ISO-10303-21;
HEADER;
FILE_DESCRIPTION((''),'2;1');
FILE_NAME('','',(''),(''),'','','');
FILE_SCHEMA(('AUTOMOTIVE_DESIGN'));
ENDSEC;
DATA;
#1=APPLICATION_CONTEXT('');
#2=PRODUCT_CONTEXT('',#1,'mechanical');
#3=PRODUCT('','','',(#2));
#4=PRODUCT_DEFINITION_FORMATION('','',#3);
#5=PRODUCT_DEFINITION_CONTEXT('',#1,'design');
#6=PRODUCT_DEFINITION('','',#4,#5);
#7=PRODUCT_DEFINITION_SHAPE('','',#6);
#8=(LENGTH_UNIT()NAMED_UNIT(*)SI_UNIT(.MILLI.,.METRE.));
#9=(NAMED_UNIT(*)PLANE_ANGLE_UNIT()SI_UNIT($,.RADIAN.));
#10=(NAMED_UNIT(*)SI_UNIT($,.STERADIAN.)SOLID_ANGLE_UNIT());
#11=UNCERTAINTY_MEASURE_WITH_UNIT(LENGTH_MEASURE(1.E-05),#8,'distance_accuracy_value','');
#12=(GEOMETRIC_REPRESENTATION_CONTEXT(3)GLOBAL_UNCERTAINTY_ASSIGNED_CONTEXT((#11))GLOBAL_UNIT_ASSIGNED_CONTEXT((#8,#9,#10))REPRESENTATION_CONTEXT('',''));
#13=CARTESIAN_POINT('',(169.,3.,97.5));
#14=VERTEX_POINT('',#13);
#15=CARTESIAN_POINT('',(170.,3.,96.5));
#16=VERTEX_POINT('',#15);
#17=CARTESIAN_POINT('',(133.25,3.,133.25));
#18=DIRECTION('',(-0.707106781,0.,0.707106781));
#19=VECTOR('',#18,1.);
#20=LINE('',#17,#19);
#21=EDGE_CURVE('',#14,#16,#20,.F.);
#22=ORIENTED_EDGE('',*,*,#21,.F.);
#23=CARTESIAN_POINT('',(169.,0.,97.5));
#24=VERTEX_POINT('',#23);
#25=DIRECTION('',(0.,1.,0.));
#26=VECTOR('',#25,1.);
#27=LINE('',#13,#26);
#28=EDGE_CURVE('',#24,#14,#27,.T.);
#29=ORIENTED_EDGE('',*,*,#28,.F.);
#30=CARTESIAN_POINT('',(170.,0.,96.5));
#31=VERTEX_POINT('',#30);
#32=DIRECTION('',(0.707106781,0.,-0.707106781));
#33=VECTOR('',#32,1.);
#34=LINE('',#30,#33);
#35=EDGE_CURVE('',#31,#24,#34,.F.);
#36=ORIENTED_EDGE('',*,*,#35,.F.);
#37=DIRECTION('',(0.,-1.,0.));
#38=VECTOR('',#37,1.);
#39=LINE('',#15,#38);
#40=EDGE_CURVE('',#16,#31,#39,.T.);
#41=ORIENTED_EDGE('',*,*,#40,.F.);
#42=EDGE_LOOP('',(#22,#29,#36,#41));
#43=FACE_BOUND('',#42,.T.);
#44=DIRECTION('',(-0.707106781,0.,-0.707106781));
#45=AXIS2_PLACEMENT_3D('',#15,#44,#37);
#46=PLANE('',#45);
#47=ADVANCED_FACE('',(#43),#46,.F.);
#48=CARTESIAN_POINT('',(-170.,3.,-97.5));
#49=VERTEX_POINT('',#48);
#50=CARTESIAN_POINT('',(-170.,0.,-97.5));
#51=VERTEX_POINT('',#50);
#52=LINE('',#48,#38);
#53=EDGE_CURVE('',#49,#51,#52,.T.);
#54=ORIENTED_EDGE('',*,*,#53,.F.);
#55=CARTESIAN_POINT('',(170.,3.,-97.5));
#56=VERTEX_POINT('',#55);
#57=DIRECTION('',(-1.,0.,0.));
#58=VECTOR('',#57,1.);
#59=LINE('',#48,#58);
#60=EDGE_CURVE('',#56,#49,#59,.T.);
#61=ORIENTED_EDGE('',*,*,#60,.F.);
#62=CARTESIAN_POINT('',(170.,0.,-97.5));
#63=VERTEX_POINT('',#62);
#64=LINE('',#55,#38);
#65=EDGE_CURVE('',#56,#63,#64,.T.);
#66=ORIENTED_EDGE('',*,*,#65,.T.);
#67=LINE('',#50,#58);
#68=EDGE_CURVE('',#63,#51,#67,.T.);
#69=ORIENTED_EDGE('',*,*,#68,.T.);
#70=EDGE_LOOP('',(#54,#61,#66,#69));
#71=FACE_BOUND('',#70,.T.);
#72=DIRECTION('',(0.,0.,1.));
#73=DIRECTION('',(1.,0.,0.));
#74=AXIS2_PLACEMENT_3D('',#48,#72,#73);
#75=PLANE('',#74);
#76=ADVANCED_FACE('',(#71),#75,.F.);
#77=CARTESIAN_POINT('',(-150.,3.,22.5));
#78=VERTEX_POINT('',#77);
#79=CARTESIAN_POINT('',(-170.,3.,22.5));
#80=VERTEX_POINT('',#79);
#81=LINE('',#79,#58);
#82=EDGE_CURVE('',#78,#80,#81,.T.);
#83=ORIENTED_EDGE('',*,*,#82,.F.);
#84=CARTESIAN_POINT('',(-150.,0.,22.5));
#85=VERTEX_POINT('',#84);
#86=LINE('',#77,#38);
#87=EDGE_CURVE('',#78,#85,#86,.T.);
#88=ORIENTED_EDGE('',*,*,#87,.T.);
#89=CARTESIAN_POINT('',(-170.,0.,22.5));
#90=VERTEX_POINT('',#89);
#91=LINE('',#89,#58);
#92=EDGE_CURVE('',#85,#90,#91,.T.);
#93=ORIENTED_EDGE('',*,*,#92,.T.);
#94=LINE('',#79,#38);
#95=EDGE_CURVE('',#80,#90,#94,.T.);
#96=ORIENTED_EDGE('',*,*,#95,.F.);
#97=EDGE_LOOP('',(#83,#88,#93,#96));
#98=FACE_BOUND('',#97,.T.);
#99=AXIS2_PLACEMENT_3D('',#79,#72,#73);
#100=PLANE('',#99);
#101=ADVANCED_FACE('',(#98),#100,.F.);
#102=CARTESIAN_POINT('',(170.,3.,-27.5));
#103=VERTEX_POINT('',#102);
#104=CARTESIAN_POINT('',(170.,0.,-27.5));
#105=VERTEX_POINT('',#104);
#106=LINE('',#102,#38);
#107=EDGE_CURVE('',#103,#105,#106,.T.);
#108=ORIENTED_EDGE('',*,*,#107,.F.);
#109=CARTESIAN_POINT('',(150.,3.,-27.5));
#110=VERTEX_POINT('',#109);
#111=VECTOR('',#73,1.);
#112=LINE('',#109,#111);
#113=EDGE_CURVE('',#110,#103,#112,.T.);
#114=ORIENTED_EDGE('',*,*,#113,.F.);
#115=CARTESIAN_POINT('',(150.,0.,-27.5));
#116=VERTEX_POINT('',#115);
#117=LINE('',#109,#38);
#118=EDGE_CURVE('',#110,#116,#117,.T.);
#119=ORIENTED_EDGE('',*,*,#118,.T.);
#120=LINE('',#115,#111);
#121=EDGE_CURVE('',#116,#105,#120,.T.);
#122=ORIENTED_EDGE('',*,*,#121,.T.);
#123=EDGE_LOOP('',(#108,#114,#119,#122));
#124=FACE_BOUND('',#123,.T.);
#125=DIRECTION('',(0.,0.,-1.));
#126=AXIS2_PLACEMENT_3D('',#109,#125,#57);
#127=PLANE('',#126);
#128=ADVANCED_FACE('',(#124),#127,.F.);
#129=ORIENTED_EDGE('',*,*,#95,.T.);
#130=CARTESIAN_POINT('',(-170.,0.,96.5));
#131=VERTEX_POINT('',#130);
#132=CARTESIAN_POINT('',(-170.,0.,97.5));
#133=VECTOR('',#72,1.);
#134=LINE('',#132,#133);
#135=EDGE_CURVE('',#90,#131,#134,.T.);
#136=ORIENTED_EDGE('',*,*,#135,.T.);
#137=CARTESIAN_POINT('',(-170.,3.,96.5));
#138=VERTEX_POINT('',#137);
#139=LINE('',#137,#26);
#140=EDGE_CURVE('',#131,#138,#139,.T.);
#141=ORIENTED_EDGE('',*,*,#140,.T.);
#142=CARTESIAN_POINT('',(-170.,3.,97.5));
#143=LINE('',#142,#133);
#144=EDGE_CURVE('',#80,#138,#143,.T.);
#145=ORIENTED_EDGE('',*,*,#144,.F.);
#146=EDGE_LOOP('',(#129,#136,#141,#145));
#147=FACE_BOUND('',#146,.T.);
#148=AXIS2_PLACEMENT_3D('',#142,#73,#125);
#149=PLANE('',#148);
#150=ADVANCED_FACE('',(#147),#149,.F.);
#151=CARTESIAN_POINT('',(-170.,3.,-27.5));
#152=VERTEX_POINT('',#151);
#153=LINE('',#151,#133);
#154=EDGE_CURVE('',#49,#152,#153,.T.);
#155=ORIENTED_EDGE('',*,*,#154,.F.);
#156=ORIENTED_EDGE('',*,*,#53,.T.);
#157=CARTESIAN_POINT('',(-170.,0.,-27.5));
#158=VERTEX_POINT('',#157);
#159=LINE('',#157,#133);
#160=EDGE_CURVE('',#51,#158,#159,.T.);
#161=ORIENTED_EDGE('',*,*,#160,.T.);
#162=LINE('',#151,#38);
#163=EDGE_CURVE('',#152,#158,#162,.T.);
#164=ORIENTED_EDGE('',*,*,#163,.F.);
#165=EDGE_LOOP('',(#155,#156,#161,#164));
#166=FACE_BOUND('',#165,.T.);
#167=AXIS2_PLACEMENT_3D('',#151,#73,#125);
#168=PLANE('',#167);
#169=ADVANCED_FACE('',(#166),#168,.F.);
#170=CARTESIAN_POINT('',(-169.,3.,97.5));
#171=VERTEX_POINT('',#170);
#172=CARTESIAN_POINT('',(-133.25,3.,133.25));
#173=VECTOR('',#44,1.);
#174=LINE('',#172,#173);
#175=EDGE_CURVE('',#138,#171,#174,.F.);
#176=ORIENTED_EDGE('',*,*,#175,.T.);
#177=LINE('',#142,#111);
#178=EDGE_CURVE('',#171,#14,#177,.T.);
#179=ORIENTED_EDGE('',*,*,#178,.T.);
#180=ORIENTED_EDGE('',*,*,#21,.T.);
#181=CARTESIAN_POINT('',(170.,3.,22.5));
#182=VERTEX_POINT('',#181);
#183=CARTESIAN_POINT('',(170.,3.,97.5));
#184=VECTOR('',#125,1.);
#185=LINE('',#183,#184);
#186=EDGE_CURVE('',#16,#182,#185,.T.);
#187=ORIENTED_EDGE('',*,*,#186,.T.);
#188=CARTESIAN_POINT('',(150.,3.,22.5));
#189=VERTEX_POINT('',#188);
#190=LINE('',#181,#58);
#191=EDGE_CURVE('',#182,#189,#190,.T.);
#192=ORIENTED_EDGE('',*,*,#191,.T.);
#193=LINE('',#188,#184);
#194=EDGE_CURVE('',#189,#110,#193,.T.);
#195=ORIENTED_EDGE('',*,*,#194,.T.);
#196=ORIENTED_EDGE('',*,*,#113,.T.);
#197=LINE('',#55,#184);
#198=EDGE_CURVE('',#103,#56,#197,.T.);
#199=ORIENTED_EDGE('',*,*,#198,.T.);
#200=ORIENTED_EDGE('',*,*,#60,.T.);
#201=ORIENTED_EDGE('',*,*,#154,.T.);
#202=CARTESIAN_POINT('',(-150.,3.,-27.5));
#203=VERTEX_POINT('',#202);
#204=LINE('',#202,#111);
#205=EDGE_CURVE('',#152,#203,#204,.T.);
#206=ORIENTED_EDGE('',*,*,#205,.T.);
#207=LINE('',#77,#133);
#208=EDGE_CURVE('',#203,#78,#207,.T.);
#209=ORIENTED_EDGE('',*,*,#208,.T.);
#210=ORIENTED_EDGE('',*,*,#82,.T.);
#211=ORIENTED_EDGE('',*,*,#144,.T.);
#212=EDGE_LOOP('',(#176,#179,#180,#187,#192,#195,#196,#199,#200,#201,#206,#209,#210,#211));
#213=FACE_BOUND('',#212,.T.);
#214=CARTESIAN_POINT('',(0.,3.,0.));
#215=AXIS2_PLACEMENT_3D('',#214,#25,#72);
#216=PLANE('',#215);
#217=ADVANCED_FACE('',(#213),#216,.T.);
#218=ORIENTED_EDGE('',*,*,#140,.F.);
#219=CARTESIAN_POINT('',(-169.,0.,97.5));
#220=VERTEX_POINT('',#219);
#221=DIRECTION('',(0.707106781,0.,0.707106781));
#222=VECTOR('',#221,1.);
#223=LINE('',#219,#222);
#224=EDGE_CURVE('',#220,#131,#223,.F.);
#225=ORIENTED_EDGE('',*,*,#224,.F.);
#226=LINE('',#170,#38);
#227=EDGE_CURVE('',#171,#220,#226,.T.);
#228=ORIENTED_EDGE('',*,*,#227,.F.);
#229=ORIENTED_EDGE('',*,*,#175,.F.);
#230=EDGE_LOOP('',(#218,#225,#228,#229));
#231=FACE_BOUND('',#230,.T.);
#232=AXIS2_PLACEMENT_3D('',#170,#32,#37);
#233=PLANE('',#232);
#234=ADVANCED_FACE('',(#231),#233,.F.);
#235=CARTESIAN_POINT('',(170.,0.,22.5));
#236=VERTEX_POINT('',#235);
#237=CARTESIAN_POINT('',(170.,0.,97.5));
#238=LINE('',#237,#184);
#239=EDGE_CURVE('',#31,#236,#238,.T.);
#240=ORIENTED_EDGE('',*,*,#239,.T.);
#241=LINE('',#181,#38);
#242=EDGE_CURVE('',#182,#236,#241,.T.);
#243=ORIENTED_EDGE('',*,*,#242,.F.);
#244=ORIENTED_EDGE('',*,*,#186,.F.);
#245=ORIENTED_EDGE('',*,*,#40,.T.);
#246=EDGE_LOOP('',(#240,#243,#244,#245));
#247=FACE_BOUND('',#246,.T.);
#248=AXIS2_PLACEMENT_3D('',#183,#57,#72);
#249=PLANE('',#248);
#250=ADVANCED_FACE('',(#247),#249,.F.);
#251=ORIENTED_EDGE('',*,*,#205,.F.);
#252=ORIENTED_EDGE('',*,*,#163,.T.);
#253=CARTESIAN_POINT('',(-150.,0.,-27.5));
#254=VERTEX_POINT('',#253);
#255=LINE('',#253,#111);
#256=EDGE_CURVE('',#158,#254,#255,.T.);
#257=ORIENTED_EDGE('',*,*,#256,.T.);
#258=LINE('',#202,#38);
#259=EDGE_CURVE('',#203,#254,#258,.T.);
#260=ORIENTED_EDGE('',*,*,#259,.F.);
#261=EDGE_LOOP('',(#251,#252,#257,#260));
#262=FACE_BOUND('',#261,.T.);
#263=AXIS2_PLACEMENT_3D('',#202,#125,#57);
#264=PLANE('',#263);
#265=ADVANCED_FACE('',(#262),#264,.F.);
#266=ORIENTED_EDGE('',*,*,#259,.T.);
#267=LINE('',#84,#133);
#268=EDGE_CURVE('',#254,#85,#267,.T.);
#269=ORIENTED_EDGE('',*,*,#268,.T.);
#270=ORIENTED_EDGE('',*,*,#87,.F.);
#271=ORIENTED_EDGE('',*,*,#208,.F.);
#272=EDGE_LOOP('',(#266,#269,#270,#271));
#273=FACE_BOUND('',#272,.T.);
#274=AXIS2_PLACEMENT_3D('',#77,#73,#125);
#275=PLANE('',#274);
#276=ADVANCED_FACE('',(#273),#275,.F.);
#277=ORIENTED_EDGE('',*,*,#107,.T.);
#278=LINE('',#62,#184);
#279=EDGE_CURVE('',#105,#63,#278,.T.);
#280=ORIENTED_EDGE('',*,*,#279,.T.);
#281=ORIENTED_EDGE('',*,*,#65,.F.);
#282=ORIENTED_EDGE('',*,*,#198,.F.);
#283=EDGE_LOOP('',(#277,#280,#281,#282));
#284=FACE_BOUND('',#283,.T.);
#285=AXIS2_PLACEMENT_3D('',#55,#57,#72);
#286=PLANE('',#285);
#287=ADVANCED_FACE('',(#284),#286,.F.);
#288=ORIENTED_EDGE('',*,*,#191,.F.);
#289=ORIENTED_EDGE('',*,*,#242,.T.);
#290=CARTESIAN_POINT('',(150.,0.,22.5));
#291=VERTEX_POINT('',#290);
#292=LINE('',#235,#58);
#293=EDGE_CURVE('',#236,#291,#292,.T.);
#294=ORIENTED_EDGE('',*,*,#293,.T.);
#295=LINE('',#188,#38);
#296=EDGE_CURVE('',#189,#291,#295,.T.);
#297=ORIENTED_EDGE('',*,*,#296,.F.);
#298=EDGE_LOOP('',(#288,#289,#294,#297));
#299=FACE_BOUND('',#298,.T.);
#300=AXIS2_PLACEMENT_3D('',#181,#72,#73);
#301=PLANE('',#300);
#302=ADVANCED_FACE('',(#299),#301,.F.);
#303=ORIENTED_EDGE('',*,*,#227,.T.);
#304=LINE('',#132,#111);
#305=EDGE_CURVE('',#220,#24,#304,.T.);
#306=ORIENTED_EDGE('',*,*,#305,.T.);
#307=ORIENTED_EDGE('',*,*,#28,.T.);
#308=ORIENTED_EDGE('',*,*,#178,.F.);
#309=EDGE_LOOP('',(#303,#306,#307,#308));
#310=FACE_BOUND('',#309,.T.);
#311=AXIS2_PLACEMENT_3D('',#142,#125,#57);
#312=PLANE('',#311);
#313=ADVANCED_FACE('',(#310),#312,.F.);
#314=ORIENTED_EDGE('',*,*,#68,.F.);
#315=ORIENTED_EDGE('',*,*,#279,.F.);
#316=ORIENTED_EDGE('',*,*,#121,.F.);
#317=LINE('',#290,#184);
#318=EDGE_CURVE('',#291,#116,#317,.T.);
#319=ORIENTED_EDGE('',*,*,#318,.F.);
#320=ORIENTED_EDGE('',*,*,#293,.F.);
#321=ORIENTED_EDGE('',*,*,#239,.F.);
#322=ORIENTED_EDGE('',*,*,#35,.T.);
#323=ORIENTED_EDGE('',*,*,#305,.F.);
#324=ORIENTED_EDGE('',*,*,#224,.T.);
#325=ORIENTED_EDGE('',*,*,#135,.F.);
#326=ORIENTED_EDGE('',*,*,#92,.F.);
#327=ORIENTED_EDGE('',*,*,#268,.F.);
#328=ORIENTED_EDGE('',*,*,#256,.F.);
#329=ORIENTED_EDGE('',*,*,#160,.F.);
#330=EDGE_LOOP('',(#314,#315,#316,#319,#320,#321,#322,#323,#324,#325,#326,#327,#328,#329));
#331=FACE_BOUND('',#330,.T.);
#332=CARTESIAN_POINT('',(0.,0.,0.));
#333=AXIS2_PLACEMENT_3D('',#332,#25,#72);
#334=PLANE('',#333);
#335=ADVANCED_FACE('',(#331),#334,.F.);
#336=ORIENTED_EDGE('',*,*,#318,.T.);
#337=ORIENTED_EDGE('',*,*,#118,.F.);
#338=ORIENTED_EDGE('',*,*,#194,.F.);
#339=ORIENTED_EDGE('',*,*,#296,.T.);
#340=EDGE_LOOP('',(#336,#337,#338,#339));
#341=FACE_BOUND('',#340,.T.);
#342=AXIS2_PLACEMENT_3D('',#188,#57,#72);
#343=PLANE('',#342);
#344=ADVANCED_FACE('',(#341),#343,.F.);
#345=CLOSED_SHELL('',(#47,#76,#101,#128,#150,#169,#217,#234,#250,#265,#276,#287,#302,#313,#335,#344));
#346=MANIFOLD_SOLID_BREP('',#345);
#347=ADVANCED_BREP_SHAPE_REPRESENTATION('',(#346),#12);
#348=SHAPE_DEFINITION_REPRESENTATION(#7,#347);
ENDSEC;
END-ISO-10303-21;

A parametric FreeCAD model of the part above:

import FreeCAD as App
import Part
import Sketcher
Q = App.Units.Quantity


def edges_at(feature, points):
    """Names of the edges that pass closest to the given points."""
    edges = feature.Shape.Edges
    near = lambda p: min(range(len(edges)), key=lambda i: edges[i].distToShape(Part.Vertex(*p))[0])
    return sorted({f"Edge{near(p) + 1}" for p in points})

doc = App.newDocument("Part")
body = doc.addObject("PartDesign::Body", "Body")

# Sketch on XZ plane
sketch1 = body.newObject("Sketcher::SketchObject", "Sketch")
sketch1.AttachmentSupport = (doc.getObject("XZ_Plane"), [""])
sketch1.MapMode = "FlatFace"
sketch1.addGeometry([
    Part.LineSegment(App.Vector(-170, 22, 0), App.Vector(-170, 98, 0)),  # 0
    Part.LineSegment(App.Vector(-170, 98, 0), App.Vector(170, 98, 0)),  # 1
    Part.LineSegment(App.Vector(170, 98, 0), App.Vector(170, 22, 0)),  # 2
    Part.LineSegment(App.Vector(170, 22, 0), App.Vector(150, 22, 0)),  # 3
    Part.LineSegment(App.Vector(150, 22, 0), App.Vector(150, -28, 0)),  # 4
    Part.LineSegment(App.Vector(150, -28, 0), App.Vector(170, -28, 0)),  # 5
    Part.LineSegment(App.Vector(170, -28, 0), App.Vector(170, -98, 0)),  # 6
    Part.LineSegment(App.Vector(170, -98, 0), App.Vector(-170, -98, 0)),  # 7
    Part.LineSegment(App.Vector(-170, -98, 0), App.Vector(-170, -28, 0)),  # 8
    Part.LineSegment(App.Vector(-170, -28, 0), App.Vector(-150, -28, 0)),  # 9
    Part.LineSegment(App.Vector(-150, -28, 0), App.Vector(-150, 22, 0)),  # 10
    Part.LineSegment(App.Vector(-150, 22, 0), App.Vector(-170, 22, 0)),  # 11
], False)
sketch1.addConstraint([
    Sketcher.Constraint("Coincident", 0, 2, 1, 1),
    Sketcher.Constraint("Coincident", 1, 2, 2, 1),
    Sketcher.Constraint("Coincident", 2, 2, 3, 1),
    Sketcher.Constraint("Coincident", 3, 2, 4, 1),
    Sketcher.Constraint("Coincident", 4, 2, 5, 1),
    Sketcher.Constraint("Coincident", 5, 2, 6, 1),
    Sketcher.Constraint("Coincident", 6, 2, 7, 1),
    Sketcher.Constraint("Coincident", 7, 2, 8, 1),
    Sketcher.Constraint("Coincident", 8, 2, 9, 1),
    Sketcher.Constraint("Coincident", 9, 2, 10, 1),
    Sketcher.Constraint("Coincident", 10, 2, 11, 1),
    Sketcher.Constraint("Coincident", 11, 2, 0, 1),
    Sketcher.Constraint("Vertical", 0),
    Sketcher.Constraint("Horizontal", 1),
    Sketcher.Constraint("Vertical", 2),
    Sketcher.Constraint("Horizontal", 3),
    Sketcher.Constraint("Vertical", 4),
    Sketcher.Constraint("Horizontal", 5),
    Sketcher.Constraint("Vertical", 6),
    Sketcher.Constraint("Horizontal", 7),
    Sketcher.Constraint("Vertical", 8),
    Sketcher.Constraint("Horizontal", 9),
    Sketcher.Constraint("Vertical", 10),
    Sketcher.Constraint("Horizontal", 11),
    Sketcher.Constraint("Symmetric", 0, 2, 6, 2, -1, 1),
    Sketcher.Constraint("Symmetric", 5, 2, 8, 2, -2),
    Sketcher.Constraint("Symmetric", 3, 2, 10, 2, -2),
    Sketcher.Constraint("Vertical", 2, 2, 5, 2),
    Sketcher.Constraint("DistanceX", 1, 1, 1, 2, Q("340 mm")),
    Sketcher.Constraint("DistanceX", 3, 2, 3, 1, Q("20 mm")),
    Sketcher.Constraint("DistanceY", 0, 1, 0, 2, Q("75 mm")),
    Sketcher.Constraint("DistanceY", 4, 2, 4, 1, Q("50 mm")),
    Sketcher.Constraint("DistanceY", 6, 2, 6, 1, Q("70 mm")),
])
pad1 = body.newObject("PartDesign::Pad", "Pad")
pad1.Profile = sketch1
pad1.Length = 3
pad1.Reversed = True
doc.recompute()

chamfer = body.newObject("PartDesign::Chamfer", "Chamfer")
chamfer.Base = (pad1, edges_at(pad1, [(-170, 1.5, 97.5), (170, 1.5, 97.5)]))
chamfer.Size = 1

doc.recompute()
